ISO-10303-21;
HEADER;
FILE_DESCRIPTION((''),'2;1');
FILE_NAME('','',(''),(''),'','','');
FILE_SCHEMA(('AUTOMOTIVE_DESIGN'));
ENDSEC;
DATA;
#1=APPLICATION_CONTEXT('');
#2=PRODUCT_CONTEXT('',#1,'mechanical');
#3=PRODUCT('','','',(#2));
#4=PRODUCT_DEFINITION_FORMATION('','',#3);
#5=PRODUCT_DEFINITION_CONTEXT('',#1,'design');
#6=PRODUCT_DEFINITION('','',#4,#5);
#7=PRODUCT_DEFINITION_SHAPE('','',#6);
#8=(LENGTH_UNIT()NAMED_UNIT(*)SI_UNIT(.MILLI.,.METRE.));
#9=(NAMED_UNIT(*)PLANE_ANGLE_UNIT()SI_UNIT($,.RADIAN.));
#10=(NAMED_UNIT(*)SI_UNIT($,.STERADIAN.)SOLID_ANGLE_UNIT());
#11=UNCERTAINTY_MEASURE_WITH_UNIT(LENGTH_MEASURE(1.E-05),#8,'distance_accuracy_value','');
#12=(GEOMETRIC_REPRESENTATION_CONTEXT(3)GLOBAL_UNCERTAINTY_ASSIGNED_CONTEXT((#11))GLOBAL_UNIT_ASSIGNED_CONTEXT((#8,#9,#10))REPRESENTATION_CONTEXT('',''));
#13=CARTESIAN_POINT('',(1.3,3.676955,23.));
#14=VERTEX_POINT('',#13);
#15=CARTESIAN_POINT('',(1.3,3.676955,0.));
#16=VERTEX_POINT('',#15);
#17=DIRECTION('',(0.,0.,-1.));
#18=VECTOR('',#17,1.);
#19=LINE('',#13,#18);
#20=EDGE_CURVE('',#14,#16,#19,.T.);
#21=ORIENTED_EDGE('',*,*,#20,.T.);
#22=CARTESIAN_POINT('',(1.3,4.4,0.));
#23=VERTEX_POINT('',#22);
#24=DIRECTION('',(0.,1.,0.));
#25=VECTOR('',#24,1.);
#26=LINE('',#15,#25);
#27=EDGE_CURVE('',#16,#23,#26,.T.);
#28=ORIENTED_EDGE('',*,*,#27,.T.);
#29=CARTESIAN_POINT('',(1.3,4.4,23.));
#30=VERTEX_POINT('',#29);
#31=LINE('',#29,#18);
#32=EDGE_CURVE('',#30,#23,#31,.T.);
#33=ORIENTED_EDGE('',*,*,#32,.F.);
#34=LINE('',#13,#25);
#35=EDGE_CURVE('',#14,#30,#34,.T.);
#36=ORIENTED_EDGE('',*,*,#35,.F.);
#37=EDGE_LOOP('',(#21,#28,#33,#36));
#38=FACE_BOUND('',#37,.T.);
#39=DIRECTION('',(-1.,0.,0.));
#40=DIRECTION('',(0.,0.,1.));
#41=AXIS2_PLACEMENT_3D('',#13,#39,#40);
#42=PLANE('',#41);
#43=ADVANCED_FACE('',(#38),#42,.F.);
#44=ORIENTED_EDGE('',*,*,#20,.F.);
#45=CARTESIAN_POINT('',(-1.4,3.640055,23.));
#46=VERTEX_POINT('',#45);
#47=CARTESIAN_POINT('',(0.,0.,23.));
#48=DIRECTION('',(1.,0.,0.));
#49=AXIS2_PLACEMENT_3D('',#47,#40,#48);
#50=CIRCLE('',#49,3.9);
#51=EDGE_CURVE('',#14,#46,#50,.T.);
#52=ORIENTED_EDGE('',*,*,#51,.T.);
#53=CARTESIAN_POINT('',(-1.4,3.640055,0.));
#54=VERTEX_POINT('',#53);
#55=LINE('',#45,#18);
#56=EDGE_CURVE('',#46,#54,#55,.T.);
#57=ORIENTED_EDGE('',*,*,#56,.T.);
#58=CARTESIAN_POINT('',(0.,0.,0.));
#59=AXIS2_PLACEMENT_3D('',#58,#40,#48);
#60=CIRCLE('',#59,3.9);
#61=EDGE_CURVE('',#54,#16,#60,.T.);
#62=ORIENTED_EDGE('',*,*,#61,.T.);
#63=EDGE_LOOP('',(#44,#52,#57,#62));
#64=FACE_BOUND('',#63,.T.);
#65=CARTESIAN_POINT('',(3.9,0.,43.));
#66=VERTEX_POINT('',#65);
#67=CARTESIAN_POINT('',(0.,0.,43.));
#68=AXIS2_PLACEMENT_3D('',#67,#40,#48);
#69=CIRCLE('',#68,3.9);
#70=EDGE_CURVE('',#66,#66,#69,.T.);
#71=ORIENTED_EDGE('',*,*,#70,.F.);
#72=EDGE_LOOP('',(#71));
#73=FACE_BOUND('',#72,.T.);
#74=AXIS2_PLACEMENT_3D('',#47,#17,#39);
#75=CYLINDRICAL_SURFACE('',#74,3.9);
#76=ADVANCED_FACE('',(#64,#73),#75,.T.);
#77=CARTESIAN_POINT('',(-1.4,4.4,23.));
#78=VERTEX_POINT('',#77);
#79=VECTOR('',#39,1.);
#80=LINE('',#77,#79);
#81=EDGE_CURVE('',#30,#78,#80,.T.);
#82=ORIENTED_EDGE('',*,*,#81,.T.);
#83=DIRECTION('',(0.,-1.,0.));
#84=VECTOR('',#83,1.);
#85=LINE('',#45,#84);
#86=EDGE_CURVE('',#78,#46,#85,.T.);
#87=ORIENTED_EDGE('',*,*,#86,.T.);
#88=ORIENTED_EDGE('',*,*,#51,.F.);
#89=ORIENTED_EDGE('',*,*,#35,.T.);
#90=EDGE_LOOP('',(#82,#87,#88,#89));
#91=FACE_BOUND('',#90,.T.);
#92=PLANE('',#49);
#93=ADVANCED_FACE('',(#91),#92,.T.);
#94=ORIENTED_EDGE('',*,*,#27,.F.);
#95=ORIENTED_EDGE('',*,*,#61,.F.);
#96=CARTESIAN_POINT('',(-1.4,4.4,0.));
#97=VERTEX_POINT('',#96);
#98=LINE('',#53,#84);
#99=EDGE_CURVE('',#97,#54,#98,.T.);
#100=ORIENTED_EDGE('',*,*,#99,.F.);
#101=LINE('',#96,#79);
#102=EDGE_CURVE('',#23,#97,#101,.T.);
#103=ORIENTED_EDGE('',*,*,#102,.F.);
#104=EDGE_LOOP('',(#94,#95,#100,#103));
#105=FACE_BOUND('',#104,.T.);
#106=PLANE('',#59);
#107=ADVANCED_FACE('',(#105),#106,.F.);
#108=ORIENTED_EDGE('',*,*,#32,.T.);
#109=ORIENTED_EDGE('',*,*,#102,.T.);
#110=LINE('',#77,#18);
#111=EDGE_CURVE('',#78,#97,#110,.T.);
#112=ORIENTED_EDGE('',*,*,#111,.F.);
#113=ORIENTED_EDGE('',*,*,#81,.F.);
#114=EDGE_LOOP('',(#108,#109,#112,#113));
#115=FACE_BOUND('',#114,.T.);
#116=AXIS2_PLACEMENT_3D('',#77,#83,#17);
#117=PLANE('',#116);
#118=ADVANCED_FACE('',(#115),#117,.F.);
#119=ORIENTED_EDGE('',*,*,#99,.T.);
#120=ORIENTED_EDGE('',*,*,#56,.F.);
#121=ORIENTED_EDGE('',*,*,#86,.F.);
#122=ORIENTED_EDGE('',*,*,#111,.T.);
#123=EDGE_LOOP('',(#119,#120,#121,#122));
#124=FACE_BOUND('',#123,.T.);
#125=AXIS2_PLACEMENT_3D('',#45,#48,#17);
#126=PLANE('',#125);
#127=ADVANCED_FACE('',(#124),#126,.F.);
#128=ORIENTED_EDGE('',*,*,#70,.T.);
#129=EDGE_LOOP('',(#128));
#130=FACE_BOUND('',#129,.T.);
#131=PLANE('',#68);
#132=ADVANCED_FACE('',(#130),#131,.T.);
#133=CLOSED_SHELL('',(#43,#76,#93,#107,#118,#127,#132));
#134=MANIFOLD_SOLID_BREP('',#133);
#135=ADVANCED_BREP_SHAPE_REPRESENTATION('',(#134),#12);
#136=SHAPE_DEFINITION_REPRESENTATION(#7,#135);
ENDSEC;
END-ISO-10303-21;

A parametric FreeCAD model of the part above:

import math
import FreeCAD as App
import Part
import Sketcher
Q = App.Units.Quantity

doc = App.newDocument("Part")
params = doc.addObject("Spreadsheet::Sheet", "Params")
for row, (alias, value) in enumerate([
    ("sketch1_radius", "3.9 mm"),
    ("sketch1_width", "2.7 mm"),
    ("pad1_length", "23 mm"),
    ("sketch2_diameter", "7.8 mm"),
    ("pad2_length", "20 mm"),
], start=1):
    params.set(f"A{row}", alias)
    params.set(f"B{row}", "=" + value)
    params.setAlias(f"B{row}", alias)

body = doc.addObject("PartDesign::Body", "Body")

sketch1 = body.newObject("Sketcher::SketchObject", "Sketch")
sketch1.AttachmentSupport = (doc.getObject("XY_Plane"), [""])
sketch1.MapMode = "FlatFace"
sketch1.addGeometry([
    Part.LineSegment(App.Vector(-1.4, 4.4, 0), App.Vector(-1.4, 3.640055, 0)),
    Part.ArcOfCircle(Part.Circle(App.Vector(0, 0, 0), App.Vector(0, 0, 1), 3.9), math.radians(111.037221), math.radians(430.528779)),
    Part.LineSegment(App.Vector(1.3, 3.676955, 0), App.Vector(1.3, 4.4, 0)),
    Part.LineSegment(App.Vector(1.3, 4.4, 0), App.Vector(-1.4, 4.4, 0)),
], False)
sketch1.addConstraint([
    Sketcher.Constraint("Coincident", 0, 2, 1, 1),
    Sketcher.Constraint("Coincident", 1, 2, 2, 1),
    Sketcher.Constraint("Coincident", 2, 2, 3, 1),
    Sketcher.Constraint("Coincident", 3, 2, 0, 1),
    Sketcher.Constraint("Vertical", 0),
    Sketcher.Constraint("Vertical", 2),
    Sketcher.Constraint("Horizontal", 3),
    Sketcher.Constraint("Coincident", 1, 3, -1, 1),
    Sketcher.Constraint("Radius", 1, Q("3.9 mm")),
    Sketcher.Constraint("DistanceX", 3, 2, 3, 1, Q("2.7 mm")),
    Sketcher.Constraint("DistanceX", 0, 2, -1, 1, Q("1.4 mm")),
    Sketcher.Constraint("DistanceY", -1, 1, 2, 2, Q("4.4 mm")),
])
sketch1.setExpression("Constraints[8]", "Params.sketch1_radius")
sketch1.setExpression("Constraints[9]", "Params.sketch1_width")
pad1 = body.newObject("PartDesign::Pad", "Pad")
pad1.Profile = sketch1
pad1.setExpression("Length", "Params.pad1_length")

sketch2 = body.newObject("Sketcher::SketchObject", "Sketch001")
sketch2.AttachmentSupport = (doc.getObject("XY_Plane"), [""])
sketch2.MapMode = "FlatFace"
sketch2.AttachmentOffset = App.Placement(App.Vector(0, 0, 23), App.Rotation())
sketch2.addGeometry(Part.Circle(App.Vector(0, 0, 0), App.Vector(0, 0, 1), 3.9), False)
sketch2.addConstraint([
    Sketcher.Constraint("Coincident", 0, 3, -1, 1),
    Sketcher.Constraint("Diameter", 0, Q("7.8 mm")),
])
sketch2.setExpression("Constraints[1]", "Params.sketch2_diameter")
pad2 = body.newObject("PartDesign::Pad", "Pad001")
pad2.Profile = sketch2
pad2.setExpression("Length", "Params.pad2_length")

doc.recompute()
